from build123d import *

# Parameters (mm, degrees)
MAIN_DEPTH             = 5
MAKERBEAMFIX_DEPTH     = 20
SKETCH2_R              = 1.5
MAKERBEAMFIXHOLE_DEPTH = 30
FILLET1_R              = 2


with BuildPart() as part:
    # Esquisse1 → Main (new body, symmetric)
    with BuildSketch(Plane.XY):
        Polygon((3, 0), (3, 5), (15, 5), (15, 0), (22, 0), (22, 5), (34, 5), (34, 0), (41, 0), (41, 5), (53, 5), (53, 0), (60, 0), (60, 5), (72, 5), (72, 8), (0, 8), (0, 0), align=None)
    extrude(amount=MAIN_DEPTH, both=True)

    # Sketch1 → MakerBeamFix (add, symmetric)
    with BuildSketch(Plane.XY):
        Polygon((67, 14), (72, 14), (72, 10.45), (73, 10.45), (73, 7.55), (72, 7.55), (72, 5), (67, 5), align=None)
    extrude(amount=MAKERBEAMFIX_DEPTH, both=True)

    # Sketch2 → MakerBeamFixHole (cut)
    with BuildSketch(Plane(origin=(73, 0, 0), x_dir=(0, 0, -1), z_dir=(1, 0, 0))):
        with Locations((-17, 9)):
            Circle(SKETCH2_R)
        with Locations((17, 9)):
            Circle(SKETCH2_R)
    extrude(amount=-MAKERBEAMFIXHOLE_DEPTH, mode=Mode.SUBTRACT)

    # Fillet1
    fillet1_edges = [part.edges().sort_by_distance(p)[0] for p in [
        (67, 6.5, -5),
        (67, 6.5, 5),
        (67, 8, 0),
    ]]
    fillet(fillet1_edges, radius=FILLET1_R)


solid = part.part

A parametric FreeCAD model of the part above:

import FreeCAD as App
import Part
import Sketcher


def edges_at(feature, points):
    """Names of the edges that pass closest to the given points."""
    edges = feature.Shape.Edges
    near = lambda p: min(range(len(edges)), key=lambda i: edges[i].distToShape(Part.Vertex(*p))[0])
    return sorted({f"Edge{near(p) + 1}" for p in points})


def add_polygon(sketch, points):
    """Adds a closed chain of lines whose ends are joined by coincident constraints."""
    first, n = sketch.GeometryCount, len(points)
    for a, b in zip(points, points[1:] + points[:1]):
        sketch.addGeometry(Part.LineSegment(App.Vector(*a, 0), App.Vector(*b, 0)), False)
    for i in range(n):
        sketch.addConstraint(Sketcher.Constraint("Coincident", first + i, 2, first + (i + 1) % n, 1))

doc = App.newDocument("Part")
params = doc.addObject("Spreadsheet::Sheet", "Params")
for row, (alias, value) in enumerate([
    ("sketch1_width", "12 mm"),
    ("sketch1_width2", "7 mm"),
    ("sketch1_width3", "72 mm"),
    ("sketch1_height", "5 mm"),
    ("pad1_length", "10 mm"),
    ("sketch2_width", "5 mm"),
    ("sketch2_width2", "1 mm"),
    ("sketch2_height", "9 mm"),
    ("sketch2_height2", "2.9 mm"),
    ("sketch2_height3", "2.55 mm"),
    ("pad2_length", "40 mm"),
    ("sketch3_diameter", "3 mm"),
    ("pocket1_length", "30 mm"),
    ("fillet_radius", "2 mm"),
], start=1):
    params.set(f"A{row}", alias)
    params.set(f"B{row}", "=" + value)
    params.setAlias(f"B{row}", alias)

body = doc.addObject("PartDesign::Body", "Body")

# Sketch on XY plane
sketch1 = body.newObject("Sketcher::SketchObject", "Sketch")
sketch1.AttachmentSupport = (doc.getObject("XY_Plane"), [""])
sketch1.MapMode = "FlatFace"
add_polygon(sketch1, [(3, 0), (3, 5), (15, 5), (15, 0), (22, 0), (22, 5), (34, 5), (34, 0), (41, 0), (41, 5), (53, 5), (53, 0), (60, 0), (60, 5), (72, 5), (72, 8), (0, 8), (0, 0)])  # lines 0-17
sketch1.addConstraint(Sketcher.Constraint("Vertical", 0))
sketch1.addConstraint(Sketcher.Constraint("Horizontal", 1))
sketch1.addConstraint(Sketcher.Constraint("Vertical", 2))
sketch1.addConstraint(Sketcher.Constraint("Horizontal", 3))
sketch1.addConstraint(Sketcher.Constraint("Vertical", 4))
sketch1.addConstraint(Sketcher.Constraint("Horizontal", 5))
sketch1.addConstraint(Sketcher.Constraint("Vertical", 6))
sketch1.addConstraint(Sketcher.Constraint("Horizontal", 7))
sketch1.addConstraint(Sketcher.Constraint("Vertical", 8))
sketch1.addConstraint(Sketcher.Constraint("Horizontal", 9))
sketch1.addConstraint(Sketcher.Constraint("Vertical", 10))
sketch1.addConstraint(Sketcher.Constraint("Horizontal", 11))
sketch1.addConstraint(Sketcher.Constraint("Vertical", 12))
sketch1.addConstraint(Sketcher.Constraint("Horizontal", 13))
sketch1.addConstraint(Sketcher.Constraint("Vertical", 14))
sketch1.addConstraint(Sketcher.Constraint("Horizontal", 15))
sketch1.addConstraint(Sketcher.Constraint("Vertical", 16))
sketch1.addConstraint(Sketcher.Constraint("Horizontal", 17))
sketch1.addConstraint(Sketcher.Constraint("Coincident", 16, 2, -1, 1))
sketch1.addConstraint(Sketcher.Constraint("PointOnObject", 2, 2, -1))
sketch1.addConstraint(Sketcher.Constraint("PointOnObject", 6, 2, -1))
sketch1.addConstraint(Sketcher.Constraint("PointOnObject", 10, 2, -1))
sketch1.addConstraint(Sketcher.Constraint("Horizontal", 1, 2, 4, 2))
sketch1.addConstraint(Sketcher.Constraint("Horizontal", 5, 2, 8, 2))
sketch1.addConstraint(Sketcher.Constraint("Horizontal", 9, 2, 12, 2))
sketch1.addConstraint(Sketcher.Constraint("Equal", 1, 5))
sketch1.addConstraint(Sketcher.Constraint("Equal", 3, 7))
sketch1.addConstraint(Sketcher.Constraint("Equal", 5, 9))
sketch1.addConstraint(Sketcher.Constraint("Equal", 7, 11))
sketch1.addConstraint(Sketcher.Constraint("Equal", 9, 13))
sketch1.addConstraint(Sketcher.Constraint("Equal", 17, 14))
sketch1.addConstraint(Sketcher.Constraint("DistanceX", 1, 1, 1, 2, 12.0))
sketch1.addConstraint(Sketcher.Constraint("DistanceX", 3, 1, 3, 2, 7.0))
sketch1.addConstraint(Sketcher.Constraint("DistanceX", 15, 2, 15, 1, 72.0))
sketch1.addConstraint(Sketcher.Constraint("DistanceY", 0, 1, 0, 2, 5.0))
sketch1.setExpression("Constraints[49]", "Params.sketch1_width")
sketch1.setExpression("Constraints[50]", "Params.sketch1_width2")
sketch1.setExpression("Constraints[51]", "Params.sketch1_width3")
sketch1.setExpression("Constraints[52]", "Params.sketch1_height")
pad1 = body.newObject("PartDesign::Pad", "Pad")
pad1.Profile = sketch1
pad1.setExpression("Length", "Params.pad1_length")
pad1.Midplane = True

# Sketch on XY plane
sketch2 = body.newObject("Sketcher::SketchObject", "Sketch001")
sketch2.AttachmentSupport = (doc.getObject("XY_Plane"), [""])
sketch2.MapMode = "FlatFace"
add_polygon(sketch2, [(72, 14), (67, 14), (67, 5), (72, 5), (72, 7.5), (73, 7.5), (73, 10.4), (72, 10.4)])  # lines 0-7
sketch2.addConstraint(Sketcher.Constraint("Horizontal", 0))
sketch2.addConstraint(Sketcher.Constraint("Vertical", 1))
sketch2.addConstraint(Sketcher.Constraint("Horizontal", 2))
sketch2.addConstraint(Sketcher.Constraint("Vertical", 3))
sketch2.addConstraint(Sketcher.Constraint("Horizontal", 4))
sketch2.addConstraint(Sketcher.Constraint("Vertical", 5))
sketch2.addConstraint(Sketcher.Constraint("Horizontal", 6))
sketch2.addConstraint(Sketcher.Constraint("Vertical", 7))
sketch2.addConstraint(Sketcher.Constraint("Vertical", 3, 2, 6, 2))
sketch2.addConstraint(Sketcher.Constraint("DistanceX", 0, 2, 0, 1, 5.0))
sketch2.addConstraint(Sketcher.Constraint("DistanceX", 4, 1, 4, 2, 1.0))
sketch2.addConstraint(Sketcher.Constraint("DistanceY", 1, 2, 1, 1, 9.0))
sketch2.addConstraint(Sketcher.Constraint("DistanceY", 5, 1, 5, 2, 2.9))
sketch2.addConstraint(Sketcher.Constraint("DistanceX", -1, 1, 0, 2, 67.0))
sketch2.addConstraint(Sketcher.Constraint("DistanceY", -1, 1, 0, 2, 14.0))
sketch2.addConstraint(Sketcher.Constraint("DistanceY", 3, 1, 3, 2, 2.55))
sketch2.setExpression("Constraints[17]", "Params.sketch2_width")
sketch2.setExpression("Constraints[18]", "Params.sketch2_width2")
sketch2.setExpression("Constraints[19]", "Params.sketch2_height")
sketch2.setExpression("Constraints[20]", "Params.sketch2_height2")
sketch2.setExpression("Constraints[23]", "Params.sketch2_height3")
pad2 = body.newObject("PartDesign::Pad", "Pad001")
pad2.Profile = sketch2
pad2.setExpression("Length", "Params.pad2_length")
pad2.Midplane = True

# Sketch on YZ plane
sketch3 = body.newObject("Sketcher::SketchObject", "Sketch002")
sketch3.AttachmentSupport = (doc.getObject("YZ_Plane"), [""])
sketch3.MapMode = "FlatFace"
sketch3.AttachmentOffset = App.Placement(App.Vector(0, 0, 73), App.Rotation())
sketch3.addGeometry(Part.Circle(App.Vector(9, 17, 0), App.Vector(0, 0, 1), 1.5), False)
sketch3.addGeometry(Part.Circle(App.Vector(9, -17, 0), App.Vector(0, 0, 1), 1.5), False)
sketch3.addConstraint(Sketcher.Constraint("Equal", 0, 1))
sketch3.addConstraint(Sketcher.Constraint("Symmetric", 0, 3, 1, 3, -1))
sketch3.addConstraint(Sketcher.Constraint("Diameter", 0, 3.0))
sketch3.addConstraint(Sketcher.Constraint("DistanceX", -1, 1, 0, 3, 9.0))
sketch3.addConstraint(Sketcher.Constraint("DistanceY", -1, 1, 0, 3, 17.0))
sketch3.setExpression("Constraints[2]", "Params.sketch3_diameter")
pocket1 = body.newObject("PartDesign::Pocket", "Pocket")
pocket1.Profile = sketch3
pocket1.setExpression("Length", "Params.pocket1_length")
doc.recompute()

fillet = body.newObject("PartDesign::Fillet", "Fillet")
fillet.Base = (pocket1, edges_at(pocket1, [(67, 6.5, -5), (67, 6.5, 5), (67, 8, 0)]))
fillet.setExpression("Radius", "Params.fillet_radius")

doc.recompute()
